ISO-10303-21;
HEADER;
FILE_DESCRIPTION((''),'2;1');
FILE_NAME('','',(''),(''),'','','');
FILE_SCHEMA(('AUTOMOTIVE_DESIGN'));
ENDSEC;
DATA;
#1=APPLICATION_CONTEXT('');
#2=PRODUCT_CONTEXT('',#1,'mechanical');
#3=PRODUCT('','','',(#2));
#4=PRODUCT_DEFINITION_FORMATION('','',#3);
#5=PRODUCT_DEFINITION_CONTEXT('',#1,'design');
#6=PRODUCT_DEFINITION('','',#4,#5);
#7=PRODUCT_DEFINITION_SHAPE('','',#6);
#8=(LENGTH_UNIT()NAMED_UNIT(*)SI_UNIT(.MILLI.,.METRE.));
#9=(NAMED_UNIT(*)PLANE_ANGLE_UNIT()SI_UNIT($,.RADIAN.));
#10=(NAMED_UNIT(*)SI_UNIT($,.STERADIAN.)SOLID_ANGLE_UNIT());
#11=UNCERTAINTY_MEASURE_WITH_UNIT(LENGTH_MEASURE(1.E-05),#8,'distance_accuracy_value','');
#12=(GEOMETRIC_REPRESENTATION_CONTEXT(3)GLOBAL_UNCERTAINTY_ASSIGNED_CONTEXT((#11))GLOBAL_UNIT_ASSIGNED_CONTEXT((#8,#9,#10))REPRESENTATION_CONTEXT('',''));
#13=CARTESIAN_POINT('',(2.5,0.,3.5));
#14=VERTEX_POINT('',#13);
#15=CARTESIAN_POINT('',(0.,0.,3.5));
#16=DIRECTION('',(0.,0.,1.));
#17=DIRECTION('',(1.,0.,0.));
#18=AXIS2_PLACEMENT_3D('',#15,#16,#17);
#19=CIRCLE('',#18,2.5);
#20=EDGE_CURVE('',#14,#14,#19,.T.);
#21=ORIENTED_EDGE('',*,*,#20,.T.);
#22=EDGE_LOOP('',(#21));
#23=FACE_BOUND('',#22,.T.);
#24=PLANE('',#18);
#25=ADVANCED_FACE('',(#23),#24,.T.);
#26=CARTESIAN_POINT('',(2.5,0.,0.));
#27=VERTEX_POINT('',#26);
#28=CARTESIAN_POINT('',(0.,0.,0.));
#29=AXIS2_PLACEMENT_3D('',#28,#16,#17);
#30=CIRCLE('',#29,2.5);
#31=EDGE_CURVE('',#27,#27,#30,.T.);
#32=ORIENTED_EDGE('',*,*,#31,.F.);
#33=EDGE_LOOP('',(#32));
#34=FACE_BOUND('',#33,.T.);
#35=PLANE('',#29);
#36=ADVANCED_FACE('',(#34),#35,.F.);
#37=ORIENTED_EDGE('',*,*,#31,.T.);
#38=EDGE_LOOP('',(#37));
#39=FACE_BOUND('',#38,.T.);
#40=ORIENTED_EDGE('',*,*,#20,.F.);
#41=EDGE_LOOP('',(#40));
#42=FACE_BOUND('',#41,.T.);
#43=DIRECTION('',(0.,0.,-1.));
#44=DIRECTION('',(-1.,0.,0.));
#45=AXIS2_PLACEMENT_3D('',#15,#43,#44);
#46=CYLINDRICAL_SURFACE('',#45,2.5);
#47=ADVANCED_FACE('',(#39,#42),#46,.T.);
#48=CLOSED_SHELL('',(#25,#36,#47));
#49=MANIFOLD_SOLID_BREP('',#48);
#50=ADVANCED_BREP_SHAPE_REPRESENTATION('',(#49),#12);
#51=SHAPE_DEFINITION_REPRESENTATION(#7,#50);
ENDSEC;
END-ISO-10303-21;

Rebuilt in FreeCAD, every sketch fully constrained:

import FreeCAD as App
import Part
import Sketcher

doc = App.newDocument("Part")
body = doc.addObject("PartDesign::Body", "Body")

# Sketch on XY plane
sketch1 = body.newObject("Sketcher::SketchObject", "Sketch")
sketch1.AttachmentSupport = (doc.getObject("XY_Plane"), [""])
sketch1.MapMode = "FlatFace"
sketch1.addGeometry(Part.Circle(App.Vector(0, 0, 0), App.Vector(0, 0, 1), 2.5), False)
sketch1.addConstraint([
    Sketcher.Constraint("Coincident", 0, 3, -1, 1),
    Sketcher.Constraint("Diameter", 0, 5.0),
])
pad1 = body.newObject("PartDesign::Pad", "Pad")
pad1.Profile = sketch1
pad1.Length = 3.5

doc.recompute()
